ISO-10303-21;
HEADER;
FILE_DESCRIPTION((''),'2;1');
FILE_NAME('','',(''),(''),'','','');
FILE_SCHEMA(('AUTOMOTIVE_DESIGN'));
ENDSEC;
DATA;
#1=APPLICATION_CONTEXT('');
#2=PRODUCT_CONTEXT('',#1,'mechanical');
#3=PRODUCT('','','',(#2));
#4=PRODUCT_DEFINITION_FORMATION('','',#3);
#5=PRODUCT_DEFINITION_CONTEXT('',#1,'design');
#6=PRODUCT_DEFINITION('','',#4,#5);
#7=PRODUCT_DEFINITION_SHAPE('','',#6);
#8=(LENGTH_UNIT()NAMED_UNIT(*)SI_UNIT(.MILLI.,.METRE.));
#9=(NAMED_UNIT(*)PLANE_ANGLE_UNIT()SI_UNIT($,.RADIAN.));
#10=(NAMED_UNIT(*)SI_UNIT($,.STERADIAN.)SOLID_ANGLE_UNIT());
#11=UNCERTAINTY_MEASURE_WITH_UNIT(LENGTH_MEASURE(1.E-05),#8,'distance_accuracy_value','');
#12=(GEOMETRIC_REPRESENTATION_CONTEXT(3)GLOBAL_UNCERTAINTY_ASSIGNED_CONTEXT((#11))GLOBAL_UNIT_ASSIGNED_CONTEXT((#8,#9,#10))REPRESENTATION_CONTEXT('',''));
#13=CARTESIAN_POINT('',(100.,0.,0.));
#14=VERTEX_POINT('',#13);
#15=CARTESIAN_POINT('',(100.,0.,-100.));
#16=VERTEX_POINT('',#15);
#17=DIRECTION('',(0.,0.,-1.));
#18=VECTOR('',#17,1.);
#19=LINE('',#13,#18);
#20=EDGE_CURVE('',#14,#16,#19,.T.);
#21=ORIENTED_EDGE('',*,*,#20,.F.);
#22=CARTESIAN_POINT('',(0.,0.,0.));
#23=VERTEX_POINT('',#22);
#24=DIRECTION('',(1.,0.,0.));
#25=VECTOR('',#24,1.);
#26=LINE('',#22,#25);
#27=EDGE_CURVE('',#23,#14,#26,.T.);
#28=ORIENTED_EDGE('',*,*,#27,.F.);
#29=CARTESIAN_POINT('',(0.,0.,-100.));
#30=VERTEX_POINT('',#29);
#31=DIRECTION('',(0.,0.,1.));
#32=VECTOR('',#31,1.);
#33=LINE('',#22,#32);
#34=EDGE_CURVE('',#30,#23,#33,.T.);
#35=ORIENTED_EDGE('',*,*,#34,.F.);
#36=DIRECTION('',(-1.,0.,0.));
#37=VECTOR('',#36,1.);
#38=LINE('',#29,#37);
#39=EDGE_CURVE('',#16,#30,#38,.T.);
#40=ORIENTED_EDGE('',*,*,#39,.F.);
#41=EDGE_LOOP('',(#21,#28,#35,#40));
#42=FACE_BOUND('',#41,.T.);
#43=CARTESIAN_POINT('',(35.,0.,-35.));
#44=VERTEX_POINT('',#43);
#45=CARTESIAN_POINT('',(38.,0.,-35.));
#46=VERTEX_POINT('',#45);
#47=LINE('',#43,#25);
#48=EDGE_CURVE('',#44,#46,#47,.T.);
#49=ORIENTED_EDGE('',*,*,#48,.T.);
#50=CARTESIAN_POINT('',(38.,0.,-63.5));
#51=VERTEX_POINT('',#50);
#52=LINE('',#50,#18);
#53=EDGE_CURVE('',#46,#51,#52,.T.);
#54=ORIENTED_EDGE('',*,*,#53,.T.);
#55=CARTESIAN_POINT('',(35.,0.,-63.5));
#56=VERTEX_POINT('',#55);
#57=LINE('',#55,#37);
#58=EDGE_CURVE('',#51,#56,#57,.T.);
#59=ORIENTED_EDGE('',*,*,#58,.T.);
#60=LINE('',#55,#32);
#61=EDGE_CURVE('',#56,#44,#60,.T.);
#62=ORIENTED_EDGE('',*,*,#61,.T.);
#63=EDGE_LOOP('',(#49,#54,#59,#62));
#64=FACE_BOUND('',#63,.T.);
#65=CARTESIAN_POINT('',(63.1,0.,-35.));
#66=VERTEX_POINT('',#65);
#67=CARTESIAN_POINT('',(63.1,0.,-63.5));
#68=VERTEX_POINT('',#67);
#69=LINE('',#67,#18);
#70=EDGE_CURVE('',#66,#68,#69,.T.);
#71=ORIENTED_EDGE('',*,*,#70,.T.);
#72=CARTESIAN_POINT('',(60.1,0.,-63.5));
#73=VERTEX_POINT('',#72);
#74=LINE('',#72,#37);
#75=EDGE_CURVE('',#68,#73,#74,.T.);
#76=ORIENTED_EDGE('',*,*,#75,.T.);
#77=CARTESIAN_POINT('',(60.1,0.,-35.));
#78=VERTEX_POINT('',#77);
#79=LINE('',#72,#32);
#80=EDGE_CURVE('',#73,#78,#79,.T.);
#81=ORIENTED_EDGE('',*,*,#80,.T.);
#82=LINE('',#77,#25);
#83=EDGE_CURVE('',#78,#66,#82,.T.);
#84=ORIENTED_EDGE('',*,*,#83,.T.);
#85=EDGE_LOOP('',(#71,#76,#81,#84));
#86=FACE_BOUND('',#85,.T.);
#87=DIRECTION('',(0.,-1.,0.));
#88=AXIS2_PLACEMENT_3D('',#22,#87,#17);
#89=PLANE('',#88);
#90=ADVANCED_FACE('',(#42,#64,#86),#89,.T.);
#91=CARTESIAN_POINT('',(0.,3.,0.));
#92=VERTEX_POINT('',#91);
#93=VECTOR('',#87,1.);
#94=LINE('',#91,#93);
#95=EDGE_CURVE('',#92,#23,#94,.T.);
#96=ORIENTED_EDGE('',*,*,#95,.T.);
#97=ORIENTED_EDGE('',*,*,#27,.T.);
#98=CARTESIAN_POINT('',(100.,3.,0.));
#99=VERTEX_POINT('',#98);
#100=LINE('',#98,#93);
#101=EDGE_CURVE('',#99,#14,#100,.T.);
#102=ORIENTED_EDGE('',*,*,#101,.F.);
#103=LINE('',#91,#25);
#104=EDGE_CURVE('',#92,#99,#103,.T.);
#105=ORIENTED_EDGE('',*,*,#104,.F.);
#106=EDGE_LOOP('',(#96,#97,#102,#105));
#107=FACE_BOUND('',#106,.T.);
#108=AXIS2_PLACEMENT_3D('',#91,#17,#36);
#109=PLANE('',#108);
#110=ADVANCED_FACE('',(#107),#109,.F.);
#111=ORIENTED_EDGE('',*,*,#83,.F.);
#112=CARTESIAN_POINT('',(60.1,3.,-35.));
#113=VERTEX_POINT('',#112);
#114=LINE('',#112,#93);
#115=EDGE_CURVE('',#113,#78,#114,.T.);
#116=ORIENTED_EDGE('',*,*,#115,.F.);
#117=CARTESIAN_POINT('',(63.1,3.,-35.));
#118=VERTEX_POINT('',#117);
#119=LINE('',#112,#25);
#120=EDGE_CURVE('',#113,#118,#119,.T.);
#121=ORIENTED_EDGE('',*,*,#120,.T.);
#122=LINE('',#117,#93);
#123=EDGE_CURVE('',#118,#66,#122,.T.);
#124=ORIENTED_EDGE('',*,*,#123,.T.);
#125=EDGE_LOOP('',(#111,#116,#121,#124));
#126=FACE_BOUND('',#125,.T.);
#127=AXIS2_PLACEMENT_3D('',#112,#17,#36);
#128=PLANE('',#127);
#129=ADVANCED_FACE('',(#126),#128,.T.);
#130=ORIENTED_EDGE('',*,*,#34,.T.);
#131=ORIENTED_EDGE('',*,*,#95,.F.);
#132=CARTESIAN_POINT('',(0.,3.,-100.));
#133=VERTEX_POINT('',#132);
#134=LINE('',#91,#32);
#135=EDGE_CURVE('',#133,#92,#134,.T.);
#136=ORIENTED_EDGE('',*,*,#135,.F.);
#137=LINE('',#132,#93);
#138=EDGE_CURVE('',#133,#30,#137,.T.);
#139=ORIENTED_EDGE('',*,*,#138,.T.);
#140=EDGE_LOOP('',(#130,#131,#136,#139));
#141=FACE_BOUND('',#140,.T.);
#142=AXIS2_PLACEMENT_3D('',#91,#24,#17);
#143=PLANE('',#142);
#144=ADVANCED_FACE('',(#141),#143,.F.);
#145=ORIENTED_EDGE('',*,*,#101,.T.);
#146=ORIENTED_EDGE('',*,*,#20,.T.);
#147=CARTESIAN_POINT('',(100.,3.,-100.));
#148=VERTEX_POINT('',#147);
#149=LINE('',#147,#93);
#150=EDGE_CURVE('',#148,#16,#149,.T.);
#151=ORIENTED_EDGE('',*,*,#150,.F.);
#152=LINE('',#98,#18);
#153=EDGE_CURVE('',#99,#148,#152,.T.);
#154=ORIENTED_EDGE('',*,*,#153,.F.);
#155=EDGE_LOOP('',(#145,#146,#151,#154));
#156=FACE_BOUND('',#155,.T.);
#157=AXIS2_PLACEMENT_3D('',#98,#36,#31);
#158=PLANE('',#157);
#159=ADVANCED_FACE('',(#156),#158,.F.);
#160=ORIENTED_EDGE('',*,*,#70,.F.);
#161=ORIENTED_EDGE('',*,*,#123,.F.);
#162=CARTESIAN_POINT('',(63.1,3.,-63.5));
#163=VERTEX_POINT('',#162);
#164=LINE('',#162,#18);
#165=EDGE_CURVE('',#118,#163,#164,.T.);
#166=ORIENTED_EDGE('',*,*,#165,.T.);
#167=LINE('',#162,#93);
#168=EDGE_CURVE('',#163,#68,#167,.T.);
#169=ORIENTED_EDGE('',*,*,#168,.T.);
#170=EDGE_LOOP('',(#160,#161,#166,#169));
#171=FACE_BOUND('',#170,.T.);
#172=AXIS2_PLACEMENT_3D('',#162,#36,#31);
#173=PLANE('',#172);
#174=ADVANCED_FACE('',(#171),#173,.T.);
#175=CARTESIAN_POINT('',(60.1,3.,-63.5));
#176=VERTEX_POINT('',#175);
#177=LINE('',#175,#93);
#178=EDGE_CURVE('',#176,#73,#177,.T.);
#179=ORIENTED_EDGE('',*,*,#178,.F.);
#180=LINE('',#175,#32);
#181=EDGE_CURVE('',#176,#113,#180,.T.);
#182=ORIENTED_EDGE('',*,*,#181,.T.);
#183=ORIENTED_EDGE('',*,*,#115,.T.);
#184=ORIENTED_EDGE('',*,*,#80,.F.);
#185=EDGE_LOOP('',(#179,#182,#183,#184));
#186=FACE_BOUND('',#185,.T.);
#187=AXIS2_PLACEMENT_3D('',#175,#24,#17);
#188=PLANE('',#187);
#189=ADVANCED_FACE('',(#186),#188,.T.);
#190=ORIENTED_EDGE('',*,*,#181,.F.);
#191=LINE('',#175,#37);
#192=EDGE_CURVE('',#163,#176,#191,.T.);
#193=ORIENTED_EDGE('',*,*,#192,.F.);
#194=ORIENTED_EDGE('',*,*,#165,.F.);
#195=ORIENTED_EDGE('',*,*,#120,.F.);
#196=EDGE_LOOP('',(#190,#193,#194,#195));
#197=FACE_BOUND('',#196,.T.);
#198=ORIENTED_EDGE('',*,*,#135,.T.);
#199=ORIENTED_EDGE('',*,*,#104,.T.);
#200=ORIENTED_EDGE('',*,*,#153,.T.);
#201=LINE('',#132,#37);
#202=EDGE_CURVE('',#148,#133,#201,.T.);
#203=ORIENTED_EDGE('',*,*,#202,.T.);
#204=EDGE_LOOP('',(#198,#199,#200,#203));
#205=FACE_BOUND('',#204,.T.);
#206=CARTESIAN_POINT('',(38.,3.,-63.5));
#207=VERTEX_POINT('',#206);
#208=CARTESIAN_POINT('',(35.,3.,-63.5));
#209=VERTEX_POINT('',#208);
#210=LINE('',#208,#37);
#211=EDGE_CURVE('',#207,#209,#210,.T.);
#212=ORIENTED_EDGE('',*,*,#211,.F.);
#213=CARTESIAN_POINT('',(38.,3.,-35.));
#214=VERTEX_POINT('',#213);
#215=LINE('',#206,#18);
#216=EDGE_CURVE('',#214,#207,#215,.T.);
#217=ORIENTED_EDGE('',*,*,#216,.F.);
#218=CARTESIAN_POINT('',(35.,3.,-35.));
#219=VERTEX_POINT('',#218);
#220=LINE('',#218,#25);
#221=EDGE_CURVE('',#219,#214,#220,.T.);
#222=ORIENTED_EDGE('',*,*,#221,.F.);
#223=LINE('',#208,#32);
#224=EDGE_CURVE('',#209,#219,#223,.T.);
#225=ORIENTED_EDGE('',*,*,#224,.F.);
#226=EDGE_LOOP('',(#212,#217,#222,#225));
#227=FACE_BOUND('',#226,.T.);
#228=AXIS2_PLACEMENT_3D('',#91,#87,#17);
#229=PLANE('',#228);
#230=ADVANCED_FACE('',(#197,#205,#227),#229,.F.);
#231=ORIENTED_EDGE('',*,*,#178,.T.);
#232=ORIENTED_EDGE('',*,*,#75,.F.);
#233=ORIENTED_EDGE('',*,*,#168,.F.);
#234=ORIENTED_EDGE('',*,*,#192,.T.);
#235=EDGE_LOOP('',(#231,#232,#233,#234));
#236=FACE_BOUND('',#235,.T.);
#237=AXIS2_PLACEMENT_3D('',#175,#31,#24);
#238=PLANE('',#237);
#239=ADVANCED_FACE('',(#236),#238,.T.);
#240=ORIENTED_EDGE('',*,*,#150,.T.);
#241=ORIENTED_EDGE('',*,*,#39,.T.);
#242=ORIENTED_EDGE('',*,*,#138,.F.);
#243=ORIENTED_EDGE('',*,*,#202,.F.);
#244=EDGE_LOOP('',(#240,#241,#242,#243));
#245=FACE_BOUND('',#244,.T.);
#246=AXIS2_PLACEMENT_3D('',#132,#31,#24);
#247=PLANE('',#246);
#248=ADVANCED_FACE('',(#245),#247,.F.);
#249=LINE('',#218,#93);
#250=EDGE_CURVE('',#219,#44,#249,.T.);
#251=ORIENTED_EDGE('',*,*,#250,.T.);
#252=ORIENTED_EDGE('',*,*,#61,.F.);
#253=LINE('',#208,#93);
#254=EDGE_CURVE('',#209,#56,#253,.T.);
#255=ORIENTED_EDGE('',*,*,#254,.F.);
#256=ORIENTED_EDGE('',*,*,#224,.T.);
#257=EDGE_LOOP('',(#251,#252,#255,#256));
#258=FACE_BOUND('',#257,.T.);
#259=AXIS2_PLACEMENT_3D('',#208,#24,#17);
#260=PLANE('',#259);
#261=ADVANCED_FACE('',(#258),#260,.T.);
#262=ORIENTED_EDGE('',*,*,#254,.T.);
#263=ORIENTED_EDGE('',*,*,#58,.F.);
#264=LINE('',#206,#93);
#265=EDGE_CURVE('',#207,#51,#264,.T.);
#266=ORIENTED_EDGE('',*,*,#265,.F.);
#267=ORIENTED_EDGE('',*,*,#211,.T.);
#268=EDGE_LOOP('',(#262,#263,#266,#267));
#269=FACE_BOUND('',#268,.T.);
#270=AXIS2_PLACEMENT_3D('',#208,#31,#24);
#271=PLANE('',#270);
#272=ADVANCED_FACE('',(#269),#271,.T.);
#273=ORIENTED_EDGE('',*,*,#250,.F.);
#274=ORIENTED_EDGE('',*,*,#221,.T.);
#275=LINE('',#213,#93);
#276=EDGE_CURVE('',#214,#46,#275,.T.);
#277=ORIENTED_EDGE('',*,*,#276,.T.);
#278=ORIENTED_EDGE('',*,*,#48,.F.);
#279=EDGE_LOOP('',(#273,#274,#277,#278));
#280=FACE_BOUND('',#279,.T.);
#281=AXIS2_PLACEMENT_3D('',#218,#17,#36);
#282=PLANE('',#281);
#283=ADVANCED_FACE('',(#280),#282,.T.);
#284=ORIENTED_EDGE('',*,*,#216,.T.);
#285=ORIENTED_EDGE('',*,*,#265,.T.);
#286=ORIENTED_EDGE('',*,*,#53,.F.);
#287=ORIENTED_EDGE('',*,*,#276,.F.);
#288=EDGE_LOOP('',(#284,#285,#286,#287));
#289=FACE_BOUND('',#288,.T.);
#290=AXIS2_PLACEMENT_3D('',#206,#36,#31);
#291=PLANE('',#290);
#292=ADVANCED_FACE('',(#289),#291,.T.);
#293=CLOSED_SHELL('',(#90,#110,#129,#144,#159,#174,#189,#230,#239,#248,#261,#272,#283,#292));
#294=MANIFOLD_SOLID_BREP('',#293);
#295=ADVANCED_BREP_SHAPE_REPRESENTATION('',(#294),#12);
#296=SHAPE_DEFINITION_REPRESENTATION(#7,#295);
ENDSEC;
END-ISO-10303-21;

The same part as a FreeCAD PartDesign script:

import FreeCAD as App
import Part
import Sketcher
from FreeCAD import Vector
Q = App.Units.Quantity


def add_polygon(sketch, points):
    """Adds a closed chain of lines whose ends are joined by coincident constraints."""
    first, n = sketch.GeometryCount, len(points)
    for a, b in zip(points, points[1:] + points[:1]):
        sketch.addGeometry(Part.LineSegment(App.Vector(*a, 0), App.Vector(*b, 0)), False)
    for i in range(n):
        sketch.addConstraint(Sketcher.Constraint("Coincident", first + i, 2, first + (i + 1) % n, 1))

doc = App.newDocument("Part")
body = doc.addObject("PartDesign::Body", "Body")

sketch1 = body.newObject("Sketcher::SketchObject", "Sketch")
sketch1.AttachmentSupport = (doc.getObject("XZ_Plane"), [""])
sketch1.MapMode = "FlatFace"
add_polygon(sketch1, [(0, -100), (0, 0), (100, 0), (100, -100)])
add_polygon(sketch1, [(38, -35), (35, -35), (35, -63.5), (38, -63.5)])
add_polygon(sketch1, [(63.1, -35), (60.1, -35), (60.1, -63.5), (63.1, -63.5)])
sketch1.addConstraint(Sketcher.Constraint("Vertical", 0))
sketch1.addConstraint(Sketcher.Constraint("Horizontal", 1))
sketch1.addConstraint(Sketcher.Constraint("Vertical", 2))
sketch1.addConstraint(Sketcher.Constraint("Horizontal", 3))
sketch1.addConstraint(Sketcher.Constraint("Horizontal", 4))
sketch1.addConstraint(Sketcher.Constraint("Vertical", 5))
sketch1.addConstraint(Sketcher.Constraint("Horizontal", 6))
sketch1.addConstraint(Sketcher.Constraint("Vertical", 7))
sketch1.addConstraint(Sketcher.Constraint("Horizontal", 8))
sketch1.addConstraint(Sketcher.Constraint("Vertical", 9))
sketch1.addConstraint(Sketcher.Constraint("Horizontal", 10))
sketch1.addConstraint(Sketcher.Constraint("Vertical", 11))
sketch1.addConstraint(Sketcher.Constraint("Coincident", 0, 2, -1, 1))
sketch1.addConstraint(Sketcher.Constraint("Horizontal", 7, 2, 8, 2))
sketch1.addConstraint(Sketcher.Constraint("Horizontal", 6, 2, 9, 2))
sketch1.addConstraint(Sketcher.Constraint("Equal", 6, 8))
sketch1.addConstraint(Sketcher.Constraint("Equal", 3, 0))
sketch1.addConstraint(Sketcher.Constraint("DistanceX", 1, 1, 1, 2, Q("100 mm")))
sketch1.addConstraint(Sketcher.Constraint("DistanceX", 4, 2, 4, 1, Q("3 mm")))
sketch1.addConstraint(Sketcher.Constraint("DistanceY", 5, 2, 5, 1, Q("28.5 mm")))
sketch1.addConstraint(Sketcher.Constraint("DistanceX", -1, 1, 4, 2, Q("35 mm")))
sketch1.addConstraint(Sketcher.Constraint("DistanceY", 4, 2, -1, 1, Q("35 mm")))
sketch1.addConstraint(Sketcher.Constraint("DistanceX", -1, 1, 8, 2, Q("60.1 mm")))
pad1 = body.newObject("PartDesign::Pad", "Pad")
pad1.Profile = sketch1
pad1.Length = 3
pad1.Reversed = True

doc.recompute()
